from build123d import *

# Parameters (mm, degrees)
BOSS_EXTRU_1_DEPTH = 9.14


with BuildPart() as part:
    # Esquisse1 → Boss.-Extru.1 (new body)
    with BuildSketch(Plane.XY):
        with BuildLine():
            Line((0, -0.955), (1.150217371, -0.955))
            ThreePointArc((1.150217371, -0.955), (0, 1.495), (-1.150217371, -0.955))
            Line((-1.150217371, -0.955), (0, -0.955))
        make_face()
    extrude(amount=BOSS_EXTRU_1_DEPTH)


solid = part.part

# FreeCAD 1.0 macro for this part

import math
import FreeCAD as App
import Part
import Sketcher

V = App.Vector

doc = App.newDocument("Part")
params = doc.addObject("Spreadsheet::Sheet", "Params")
for row, (alias, value) in enumerate([
    ("pad1_length", "9.14 mm"),
], start=1):
    params.set(f"A{row}", alias)
    params.set(f"B{row}", "=" + value)
    params.setAlias(f"B{row}", alias)

body = doc.addObject("PartDesign::Body", "Body")

# Sketch on XY plane
sketch1 = body.newObject("Sketcher::SketchObject", "Sketch")
sketch1.AttachmentSupport = (doc.getObject("XY_Plane"), [""])
sketch1.MapMode = "FlatFace"
sketch1.addGeometry([
    Part.ArcOfCircle(Part.Circle(V(0, 0, 0), V(0, 0, 1), 1.495), math.radians(-39.702098), math.radians(219.702098)),
    Part.LineSegment(V(-1.150217, -0.955, 0), V(1.150217, -0.955, 0)),
], False)
sketch1.addConstraint([
    Sketcher.Constraint("Coincident", 0, 1, 1, 2),
    Sketcher.Constraint("Coincident", 1, 1, 0, 2),
    Sketcher.Constraint("Horizontal", 1),
    Sketcher.Constraint("Coincident", 0, 3, -1, 1),
    Sketcher.Constraint("Radius", 0, 1.495),
    Sketcher.Constraint("DistanceY", 0, 1, -1, 1, 0.955),
])
pad1 = body.newObject("PartDesign::Pad", "Pad")
pad1.Profile = sketch1
pad1.setExpression("Length", "Params.pad1_length")

doc.recompute()
